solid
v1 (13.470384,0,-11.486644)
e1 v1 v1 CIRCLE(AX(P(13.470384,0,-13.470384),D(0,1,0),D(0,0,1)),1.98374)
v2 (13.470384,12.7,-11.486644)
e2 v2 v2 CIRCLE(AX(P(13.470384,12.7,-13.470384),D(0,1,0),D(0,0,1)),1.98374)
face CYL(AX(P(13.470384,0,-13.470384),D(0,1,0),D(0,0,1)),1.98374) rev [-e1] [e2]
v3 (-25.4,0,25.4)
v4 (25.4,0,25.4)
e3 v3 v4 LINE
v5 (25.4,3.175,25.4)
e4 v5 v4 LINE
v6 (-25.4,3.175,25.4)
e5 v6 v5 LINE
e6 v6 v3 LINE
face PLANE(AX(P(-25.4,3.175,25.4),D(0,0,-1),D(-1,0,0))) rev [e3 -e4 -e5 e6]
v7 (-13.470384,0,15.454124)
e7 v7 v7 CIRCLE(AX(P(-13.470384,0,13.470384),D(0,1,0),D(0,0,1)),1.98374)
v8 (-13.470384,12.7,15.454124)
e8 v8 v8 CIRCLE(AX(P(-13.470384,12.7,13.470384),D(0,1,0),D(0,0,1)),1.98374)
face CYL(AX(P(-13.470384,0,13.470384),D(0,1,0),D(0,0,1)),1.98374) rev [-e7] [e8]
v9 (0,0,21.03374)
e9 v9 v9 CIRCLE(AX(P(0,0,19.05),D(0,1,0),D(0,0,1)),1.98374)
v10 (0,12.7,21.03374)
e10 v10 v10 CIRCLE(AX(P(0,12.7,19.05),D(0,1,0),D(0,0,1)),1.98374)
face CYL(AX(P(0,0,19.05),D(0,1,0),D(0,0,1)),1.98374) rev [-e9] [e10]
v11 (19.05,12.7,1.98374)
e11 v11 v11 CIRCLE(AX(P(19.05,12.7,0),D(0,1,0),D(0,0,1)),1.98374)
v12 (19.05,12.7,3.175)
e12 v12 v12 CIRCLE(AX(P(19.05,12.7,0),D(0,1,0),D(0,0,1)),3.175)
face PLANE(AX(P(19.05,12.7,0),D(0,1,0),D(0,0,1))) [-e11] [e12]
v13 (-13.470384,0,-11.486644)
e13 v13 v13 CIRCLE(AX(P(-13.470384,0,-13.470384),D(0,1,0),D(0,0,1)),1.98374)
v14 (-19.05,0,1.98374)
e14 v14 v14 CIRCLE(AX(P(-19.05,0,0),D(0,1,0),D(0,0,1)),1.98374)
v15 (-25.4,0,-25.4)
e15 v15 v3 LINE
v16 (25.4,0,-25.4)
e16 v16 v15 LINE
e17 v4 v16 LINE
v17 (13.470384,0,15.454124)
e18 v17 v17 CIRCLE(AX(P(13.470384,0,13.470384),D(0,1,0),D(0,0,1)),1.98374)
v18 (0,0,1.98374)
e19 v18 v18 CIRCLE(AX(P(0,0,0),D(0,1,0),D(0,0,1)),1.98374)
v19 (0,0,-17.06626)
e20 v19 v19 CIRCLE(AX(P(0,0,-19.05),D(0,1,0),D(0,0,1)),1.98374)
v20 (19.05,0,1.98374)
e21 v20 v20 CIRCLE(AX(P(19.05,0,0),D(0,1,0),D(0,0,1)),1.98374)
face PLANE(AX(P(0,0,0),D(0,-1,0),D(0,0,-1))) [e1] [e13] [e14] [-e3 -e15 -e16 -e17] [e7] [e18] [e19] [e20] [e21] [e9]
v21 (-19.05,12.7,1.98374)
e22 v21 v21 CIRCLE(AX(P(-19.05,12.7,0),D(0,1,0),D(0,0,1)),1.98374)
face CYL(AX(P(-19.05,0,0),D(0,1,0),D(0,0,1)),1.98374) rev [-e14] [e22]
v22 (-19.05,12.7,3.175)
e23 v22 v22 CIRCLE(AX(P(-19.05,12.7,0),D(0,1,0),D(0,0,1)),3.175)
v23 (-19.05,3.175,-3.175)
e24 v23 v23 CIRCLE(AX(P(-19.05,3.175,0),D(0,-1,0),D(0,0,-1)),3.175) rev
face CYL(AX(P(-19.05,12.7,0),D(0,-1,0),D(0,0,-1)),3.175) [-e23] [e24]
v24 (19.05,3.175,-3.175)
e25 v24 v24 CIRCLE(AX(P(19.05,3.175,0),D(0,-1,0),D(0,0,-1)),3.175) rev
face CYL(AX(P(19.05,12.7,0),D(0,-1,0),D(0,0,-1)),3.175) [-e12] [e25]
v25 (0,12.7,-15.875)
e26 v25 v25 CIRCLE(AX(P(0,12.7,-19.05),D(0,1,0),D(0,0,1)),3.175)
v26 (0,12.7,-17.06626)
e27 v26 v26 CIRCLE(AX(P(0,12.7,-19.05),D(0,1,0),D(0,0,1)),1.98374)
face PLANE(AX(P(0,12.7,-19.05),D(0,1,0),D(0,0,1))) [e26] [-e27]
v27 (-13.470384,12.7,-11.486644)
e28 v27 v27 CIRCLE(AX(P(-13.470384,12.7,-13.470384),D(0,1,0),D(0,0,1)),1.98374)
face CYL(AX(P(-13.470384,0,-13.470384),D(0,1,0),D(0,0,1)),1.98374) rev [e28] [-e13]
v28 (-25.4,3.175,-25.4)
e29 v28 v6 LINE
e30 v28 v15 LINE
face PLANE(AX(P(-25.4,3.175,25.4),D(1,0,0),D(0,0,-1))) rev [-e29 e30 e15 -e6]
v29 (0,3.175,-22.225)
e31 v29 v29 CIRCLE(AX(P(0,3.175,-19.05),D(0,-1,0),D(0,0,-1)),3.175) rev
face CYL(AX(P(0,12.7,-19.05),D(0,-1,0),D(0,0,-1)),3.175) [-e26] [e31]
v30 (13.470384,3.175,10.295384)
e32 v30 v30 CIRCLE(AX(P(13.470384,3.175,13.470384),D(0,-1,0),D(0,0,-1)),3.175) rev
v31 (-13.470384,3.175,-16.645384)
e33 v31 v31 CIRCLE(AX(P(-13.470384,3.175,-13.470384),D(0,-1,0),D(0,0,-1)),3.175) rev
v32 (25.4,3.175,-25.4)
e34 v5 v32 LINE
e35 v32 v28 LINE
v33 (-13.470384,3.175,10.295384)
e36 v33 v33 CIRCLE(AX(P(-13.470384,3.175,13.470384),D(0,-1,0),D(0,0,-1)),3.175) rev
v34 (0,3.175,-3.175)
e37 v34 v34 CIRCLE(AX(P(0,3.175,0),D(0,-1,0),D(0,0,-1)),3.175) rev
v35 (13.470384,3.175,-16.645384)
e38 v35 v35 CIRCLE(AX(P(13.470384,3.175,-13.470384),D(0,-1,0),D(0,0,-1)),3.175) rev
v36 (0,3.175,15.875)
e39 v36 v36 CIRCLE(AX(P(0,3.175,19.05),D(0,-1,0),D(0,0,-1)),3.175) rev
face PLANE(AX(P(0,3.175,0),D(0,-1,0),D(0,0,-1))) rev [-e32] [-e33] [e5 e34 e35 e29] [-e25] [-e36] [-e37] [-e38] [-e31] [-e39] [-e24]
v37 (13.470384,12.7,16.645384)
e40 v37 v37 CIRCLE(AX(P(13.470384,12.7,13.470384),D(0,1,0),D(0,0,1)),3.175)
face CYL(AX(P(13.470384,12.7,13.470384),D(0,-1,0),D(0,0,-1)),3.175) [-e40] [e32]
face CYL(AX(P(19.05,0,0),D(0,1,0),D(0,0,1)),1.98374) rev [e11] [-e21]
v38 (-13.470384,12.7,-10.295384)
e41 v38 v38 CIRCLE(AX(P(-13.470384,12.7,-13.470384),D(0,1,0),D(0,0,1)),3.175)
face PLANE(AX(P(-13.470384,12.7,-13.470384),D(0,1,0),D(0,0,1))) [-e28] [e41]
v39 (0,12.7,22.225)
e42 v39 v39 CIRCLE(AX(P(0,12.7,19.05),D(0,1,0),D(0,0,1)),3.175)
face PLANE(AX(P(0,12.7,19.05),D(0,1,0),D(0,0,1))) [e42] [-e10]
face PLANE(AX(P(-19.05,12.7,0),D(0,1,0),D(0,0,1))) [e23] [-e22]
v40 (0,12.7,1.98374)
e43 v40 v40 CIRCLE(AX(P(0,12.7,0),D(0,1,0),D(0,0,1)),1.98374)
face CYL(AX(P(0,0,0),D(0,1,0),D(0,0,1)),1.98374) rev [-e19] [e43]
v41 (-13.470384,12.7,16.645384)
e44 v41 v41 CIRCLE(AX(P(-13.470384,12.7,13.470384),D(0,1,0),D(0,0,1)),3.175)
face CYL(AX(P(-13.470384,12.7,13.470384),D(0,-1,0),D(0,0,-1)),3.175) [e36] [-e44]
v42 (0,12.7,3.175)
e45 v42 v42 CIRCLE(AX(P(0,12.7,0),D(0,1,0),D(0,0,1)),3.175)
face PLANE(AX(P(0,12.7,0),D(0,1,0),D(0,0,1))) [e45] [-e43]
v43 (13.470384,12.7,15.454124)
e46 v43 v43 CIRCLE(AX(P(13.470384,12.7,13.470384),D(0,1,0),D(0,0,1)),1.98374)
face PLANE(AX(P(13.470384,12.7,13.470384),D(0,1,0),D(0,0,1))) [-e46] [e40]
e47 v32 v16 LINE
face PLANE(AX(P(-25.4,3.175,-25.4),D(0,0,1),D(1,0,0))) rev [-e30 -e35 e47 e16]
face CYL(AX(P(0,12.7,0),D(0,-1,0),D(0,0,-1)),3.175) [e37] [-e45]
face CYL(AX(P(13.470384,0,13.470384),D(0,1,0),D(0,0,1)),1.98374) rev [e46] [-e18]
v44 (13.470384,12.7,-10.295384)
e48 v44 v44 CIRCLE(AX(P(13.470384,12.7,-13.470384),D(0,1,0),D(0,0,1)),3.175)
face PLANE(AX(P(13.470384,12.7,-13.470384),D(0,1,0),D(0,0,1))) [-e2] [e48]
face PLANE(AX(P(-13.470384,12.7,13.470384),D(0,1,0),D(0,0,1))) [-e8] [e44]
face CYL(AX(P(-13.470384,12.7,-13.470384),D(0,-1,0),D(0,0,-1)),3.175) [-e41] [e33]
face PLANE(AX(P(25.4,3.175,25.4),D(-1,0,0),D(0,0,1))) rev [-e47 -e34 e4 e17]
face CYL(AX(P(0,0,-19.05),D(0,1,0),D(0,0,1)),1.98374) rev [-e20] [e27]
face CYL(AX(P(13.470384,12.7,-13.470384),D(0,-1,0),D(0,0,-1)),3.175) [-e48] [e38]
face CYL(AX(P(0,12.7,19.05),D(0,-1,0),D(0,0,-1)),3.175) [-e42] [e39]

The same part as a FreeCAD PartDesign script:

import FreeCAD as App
import Part
import Sketcher
from FreeCAD import Vector
Q = App.Units.Quantity

doc = App.newDocument("Part")
body = doc.addObject("PartDesign::Body", "Body")

# Sketch on XZ plane
sketch1 = body.newObject("Sketcher::SketchObject", "Sketch")
sketch1.AttachmentSupport = (doc.getObject("XZ_Plane"), [""])
sketch1.MapMode = "FlatFace"
sketch1.addGeometry([
    Part.LineSegment(Vector(-25, -25, 0), Vector(-25, 25, 0)),
    Part.LineSegment(Vector(-25, 25, 0), Vector(25, 25, 0)),
    Part.LineSegment(Vector(25, 25, 0), Vector(25, -25, 0)),
    Part.LineSegment(Vector(25, -25, 0), Vector(-25, -25, 0)),
], False)
sketch1.addConstraint([
    Sketcher.Constraint("Coincident", 0, 2, 1, 1),
    Sketcher.Constraint("Coincident", 1, 2, 2, 1),
    Sketcher.Constraint("Coincident", 2, 2, 3, 1),
    Sketcher.Constraint("Coincident", 3, 2, 0, 1),
    Sketcher.Constraint("Vertical", 0),
    Sketcher.Constraint("Horizontal", 1),
    Sketcher.Constraint("Vertical", 2),
    Sketcher.Constraint("Horizontal", 3),
    Sketcher.Constraint("Symmetric", 0, 2, 2, 2, -1, 1),
    Sketcher.Constraint("Equal", 3, 0),
    Sketcher.Constraint("DistanceX", 1, 1, 1, 2, Q("2 in")),
])
pad1 = body.newObject("PartDesign::Pad", "Pad")
pad1.Profile = sketch1
pad1.Length = Q("0.125 in")
pad1.Reversed = True

# Sketch on XZ plane
sketch2 = body.newObject("Sketcher::SketchObject", "Sketch001")
sketch2.AttachmentSupport = (doc.getObject("XZ_Plane"), [""])
sketch2.MapMode = "FlatFace"
sketch2.AttachmentOffset = App.Placement(Vector(0, 0, -0.125 * 25.4), App.Rotation())
sketch2.addGeometry([
    Part.Circle(Vector(0, -19.1, 0), Vector(0, 0, 1), 3.2),  # 0
    Part.Circle(Vector(13.5, -13.5, 0), Vector(0, 0, 1), 3.2),  # 1
    Part.Circle(Vector(19.1, 0, 0), Vector(0, 0, 1), 3.2),  # 2
    Part.Circle(Vector(13.5, 13.5, 0), Vector(0, 0, 1), 3.2),  # 3
    Part.Circle(Vector(0, 19.1, 0), Vector(0, 0, 1), 3.2),  # 4
    Part.Circle(Vector(-13.5, 13.5, 0), Vector(0, 0, 1), 3.2),  # 5
    Part.Circle(Vector(-19.1, 0, 0), Vector(0, 0, 1), 3.2),  # 6
    Part.Circle(Vector(-13.5, -13.5, 0), Vector(0, 0, 1), 3.2),  # 7
    Part.Circle(Vector(0, 0, 0), Vector(0, 0, 1), 3.2),  # 8
], False)
sketch2.addConstraint([
    Sketcher.Constraint("Coincident", 8, 3, -1, 1),
    Sketcher.Constraint("Equal", 0, 1),
    Sketcher.Constraint("Equal", 1, 2),
    Sketcher.Constraint("Equal", 2, 3),
    Sketcher.Constraint("Equal", 3, 4),
    Sketcher.Constraint("Equal", 4, 5),
    Sketcher.Constraint("Equal", 5, 6),
    Sketcher.Constraint("Equal", 6, 7),
    Sketcher.Constraint("Equal", 7, 8),
    Sketcher.Constraint("Symmetric", 0, 3, 4, 3, -1, 1),
    Sketcher.Constraint("Symmetric", 1, 3, 5, 3, -1, 1),
    Sketcher.Constraint("Symmetric", 2, 3, 6, 3, -1, 1),
    Sketcher.Constraint("Symmetric", 3, 3, 7, 3, -1, 1),
    Sketcher.Constraint("Symmetric", 3, 3, 5, 3, -2),
    Sketcher.Constraint("PointOnObject", 0, 3, -2),
    Sketcher.Constraint("PointOnObject", 2, 3, -1),
    Sketcher.Constraint("Diameter", 0, Q("0.25 in")),
    Sketcher.Constraint("DistanceY", 0, 3, 4, 3, Q("1.5 in")),
    Sketcher.Constraint("DistanceX", -1, 1, 2, 3, Q("0.75 in")),
    Sketcher.Constraint("DistanceY", 1, 3, 3, 3, 26.940768),
    Sketcher.Constraint("DistanceX", 5, 3, 3, 3, 26.940768),
])
pad2 = body.newObject("PartDesign::Pad", "Pad001")
pad2.Profile = sketch2
pad2.Length = Q("0.375 in")
pad2.Reversed = True

# Sketch on XZ plane
sketch3 = body.newObject("Sketcher::SketchObject", "Sketch002")
sketch3.AttachmentSupport = (doc.getObject("XZ_Plane"), [""])
sketch3.MapMode = "FlatFace"
sketch3.AttachmentOffset = App.Placement(Vector(0, 0, -0.5 * 25.4), App.Rotation())
sketch3.addGeometry([
    Part.Circle(Vector(0, -19.1, 0), Vector(0, 0, 1), 2),  # 0
    Part.Circle(Vector(13.5, -13.5, 0), Vector(0, 0, 1), 2),  # 1
    Part.Circle(Vector(19.1, 0, 0), Vector(0, 0, 1), 2),  # 2
    Part.Circle(Vector(13.5, 13.5, 0), Vector(0, 0, 1), 2),  # 3
    Part.Circle(Vector(0, 19.1, 0), Vector(0, 0, 1), 2),  # 4
    Part.Circle(Vector(-13.5, 13.5, 0), Vector(0, 0, 1), 2),  # 5
    Part.Circle(Vector(-19.1, 0, 0), Vector(0, 0, 1), 2),  # 6
    Part.Circle(Vector(-13.5, -13.5, 0), Vector(0, 0, 1), 2),  # 7
    Part.Circle(Vector(0, 0, 0), Vector(0, 0, 1), 2),  # 8
], False)
sketch3.addConstraint([
    Sketcher.Constraint("Coincident", 8, 3, -1, 1),
    Sketcher.Constraint("Equal", 0, 1),
    Sketcher.Constraint("Equal", 1, 2),
    Sketcher.Constraint("Equal", 2, 3),
    Sketcher.Constraint("Equal", 3, 4),
    Sketcher.Constraint("Equal", 4, 5),
    Sketcher.Constraint("Equal", 5, 6),
    Sketcher.Constraint("Equal", 6, 7),
    Sketcher.Constraint("Equal", 7, 8),
    Sketcher.Constraint("Symmetric", 0, 3, 4, 3, -1, 1),
    Sketcher.Constraint("Symmetric", 1, 3, 5, 3, -1, 1),
    Sketcher.Constraint("Symmetric", 2, 3, 6, 3, -1, 1),
    Sketcher.Constraint("Symmetric", 3, 3, 7, 3, -1, 1),
    Sketcher.Constraint("Symmetric", 3, 3, 5, 3, -2),
    Sketcher.Constraint("PointOnObject", 0, 3, -2),
    Sketcher.Constraint("PointOnObject", 2, 3, -1),
    Sketcher.Constraint("Diameter", 0, Q("0.1562 in")),
    Sketcher.Constraint("DistanceY", 0, 3, 4, 3, Q("1.5 in")),
    Sketcher.Constraint("DistanceX", -1, 1, 2, 3, Q("0.75 in")),
    Sketcher.Constraint("DistanceY", 1, 3, 3, 3, 26.940768),
    Sketcher.Constraint("DistanceX", 5, 3, 3, 3, 26.940768),
])
pocket1 = body.newObject("PartDesign::Pocket", "Pocket")
pocket1.Profile = sketch3
pocket1.Type = "ThroughAll"
pocket1.Reversed = True

doc.recompute()
